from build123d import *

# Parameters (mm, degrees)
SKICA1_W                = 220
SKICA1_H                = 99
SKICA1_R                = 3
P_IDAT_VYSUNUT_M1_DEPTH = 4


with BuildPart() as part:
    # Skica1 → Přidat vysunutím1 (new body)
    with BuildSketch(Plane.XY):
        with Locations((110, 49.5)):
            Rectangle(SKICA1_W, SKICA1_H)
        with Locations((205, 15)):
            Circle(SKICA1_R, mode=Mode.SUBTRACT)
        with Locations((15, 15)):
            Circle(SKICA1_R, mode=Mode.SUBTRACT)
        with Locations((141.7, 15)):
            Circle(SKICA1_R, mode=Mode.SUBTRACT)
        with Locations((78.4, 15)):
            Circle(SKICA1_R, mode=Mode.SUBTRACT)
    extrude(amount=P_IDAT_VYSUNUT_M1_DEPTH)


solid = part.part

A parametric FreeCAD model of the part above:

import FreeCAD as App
import Part
import Sketcher


def add_polygon(sketch, points):
    """Adds a closed chain of lines whose ends are joined by coincident constraints."""
    first, n = sketch.GeometryCount, len(points)
    for a, b in zip(points, points[1:] + points[:1]):
        sketch.addGeometry(Part.LineSegment(App.Vector(*a, 0), App.Vector(*b, 0)), False)
    for i in range(n):
        sketch.addConstraint(Sketcher.Constraint("Coincident", first + i, 2, first + (i + 1) % n, 1))

doc = App.newDocument("Part")
params = doc.addObject("Spreadsheet::Sheet", "Params")
for row, (alias, value) in enumerate([
    ("sketch1_diameter", "6 mm"),
    ("sketch1_width", "220 mm"),
    ("sketch1_height", "99 mm"),
    ("pad1_length", "4 mm"),
], start=1):
    params.set(f"A{row}", alias)
    params.set(f"B{row}", "=" + value)
    params.setAlias(f"B{row}", alias)

body = doc.addObject("PartDesign::Body", "Body")

sketch1 = body.newObject("Sketcher::SketchObject", "Sketch")
sketch1.AttachmentSupport = (doc.getObject("XY_Plane"), [""])
sketch1.MapMode = "FlatFace"
add_polygon(sketch1, [(0, 99), (0, 0), (220, 0), (220, 99)])
sketch1.addGeometry(Part.Circle(App.Vector(15, 15, 0), App.Vector(0, 0, 1), 3), False)
sketch1.addGeometry(Part.Circle(App.Vector(78.4, 15, 0), App.Vector(0, 0, 1), 3), False)
sketch1.addGeometry(Part.Circle(App.Vector(141.7, 15, 0), App.Vector(0, 0, 1), 3), False)
sketch1.addGeometry(Part.Circle(App.Vector(205, 15, 0), App.Vector(0, 0, 1), 3), False)
sketch1.addConstraint(Sketcher.Constraint("Vertical", 0))
sketch1.addConstraint(Sketcher.Constraint("Horizontal", 1))
sketch1.addConstraint(Sketcher.Constraint("Vertical", 2))
sketch1.addConstraint(Sketcher.Constraint("Horizontal", 3))
sketch1.addConstraint(Sketcher.Constraint("Coincident", 0, 2, -1, 1))
sketch1.addConstraint(Sketcher.Constraint("Equal", 4, 5))
sketch1.addConstraint(Sketcher.Constraint("Equal", 5, 6))
sketch1.addConstraint(Sketcher.Constraint("Equal", 6, 7))
sketch1.addConstraint(Sketcher.Constraint("Horizontal", 4, 3, 5, 3))
sketch1.addConstraint(Sketcher.Constraint("Horizontal", 5, 3, 6, 3))
sketch1.addConstraint(Sketcher.Constraint("Horizontal", 6, 3, 7, 3))
sketch1.addConstraint(Sketcher.Constraint("Diameter", 4, 6.0))
sketch1.addConstraint(Sketcher.Constraint("DistanceX", 1, 1, 1, 2, 220.0))
sketch1.addConstraint(Sketcher.Constraint("DistanceY", 0, 2, 0, 1, 99.0))
sketch1.addConstraint(Sketcher.Constraint("DistanceX", -1, 1, 4, 3, 15.0))
sketch1.addConstraint(Sketcher.Constraint("DistanceY", -1, 1, 4, 3, 15.0))
sketch1.addConstraint(Sketcher.Constraint("DistanceX", -1, 1, 7, 3, 205.0))
sketch1.addConstraint(Sketcher.Constraint("DistanceX", -1, 1, 5, 3, 78.4))
sketch1.addConstraint(Sketcher.Constraint("DistanceX", -1, 1, 6, 3, 141.7))
sketch1.setExpression("Constraints[15]", "Params.sketch1_diameter")
sketch1.setExpression("Constraints[16]", "Params.sketch1_width")
sketch1.setExpression("Constraints[17]", "Params.sketch1_height")
pad1 = body.newObject("PartDesign::Pad", "Pad")
pad1.Profile = sketch1
pad1.setExpression("Length", "Params.pad1_length")

doc.recompute()
